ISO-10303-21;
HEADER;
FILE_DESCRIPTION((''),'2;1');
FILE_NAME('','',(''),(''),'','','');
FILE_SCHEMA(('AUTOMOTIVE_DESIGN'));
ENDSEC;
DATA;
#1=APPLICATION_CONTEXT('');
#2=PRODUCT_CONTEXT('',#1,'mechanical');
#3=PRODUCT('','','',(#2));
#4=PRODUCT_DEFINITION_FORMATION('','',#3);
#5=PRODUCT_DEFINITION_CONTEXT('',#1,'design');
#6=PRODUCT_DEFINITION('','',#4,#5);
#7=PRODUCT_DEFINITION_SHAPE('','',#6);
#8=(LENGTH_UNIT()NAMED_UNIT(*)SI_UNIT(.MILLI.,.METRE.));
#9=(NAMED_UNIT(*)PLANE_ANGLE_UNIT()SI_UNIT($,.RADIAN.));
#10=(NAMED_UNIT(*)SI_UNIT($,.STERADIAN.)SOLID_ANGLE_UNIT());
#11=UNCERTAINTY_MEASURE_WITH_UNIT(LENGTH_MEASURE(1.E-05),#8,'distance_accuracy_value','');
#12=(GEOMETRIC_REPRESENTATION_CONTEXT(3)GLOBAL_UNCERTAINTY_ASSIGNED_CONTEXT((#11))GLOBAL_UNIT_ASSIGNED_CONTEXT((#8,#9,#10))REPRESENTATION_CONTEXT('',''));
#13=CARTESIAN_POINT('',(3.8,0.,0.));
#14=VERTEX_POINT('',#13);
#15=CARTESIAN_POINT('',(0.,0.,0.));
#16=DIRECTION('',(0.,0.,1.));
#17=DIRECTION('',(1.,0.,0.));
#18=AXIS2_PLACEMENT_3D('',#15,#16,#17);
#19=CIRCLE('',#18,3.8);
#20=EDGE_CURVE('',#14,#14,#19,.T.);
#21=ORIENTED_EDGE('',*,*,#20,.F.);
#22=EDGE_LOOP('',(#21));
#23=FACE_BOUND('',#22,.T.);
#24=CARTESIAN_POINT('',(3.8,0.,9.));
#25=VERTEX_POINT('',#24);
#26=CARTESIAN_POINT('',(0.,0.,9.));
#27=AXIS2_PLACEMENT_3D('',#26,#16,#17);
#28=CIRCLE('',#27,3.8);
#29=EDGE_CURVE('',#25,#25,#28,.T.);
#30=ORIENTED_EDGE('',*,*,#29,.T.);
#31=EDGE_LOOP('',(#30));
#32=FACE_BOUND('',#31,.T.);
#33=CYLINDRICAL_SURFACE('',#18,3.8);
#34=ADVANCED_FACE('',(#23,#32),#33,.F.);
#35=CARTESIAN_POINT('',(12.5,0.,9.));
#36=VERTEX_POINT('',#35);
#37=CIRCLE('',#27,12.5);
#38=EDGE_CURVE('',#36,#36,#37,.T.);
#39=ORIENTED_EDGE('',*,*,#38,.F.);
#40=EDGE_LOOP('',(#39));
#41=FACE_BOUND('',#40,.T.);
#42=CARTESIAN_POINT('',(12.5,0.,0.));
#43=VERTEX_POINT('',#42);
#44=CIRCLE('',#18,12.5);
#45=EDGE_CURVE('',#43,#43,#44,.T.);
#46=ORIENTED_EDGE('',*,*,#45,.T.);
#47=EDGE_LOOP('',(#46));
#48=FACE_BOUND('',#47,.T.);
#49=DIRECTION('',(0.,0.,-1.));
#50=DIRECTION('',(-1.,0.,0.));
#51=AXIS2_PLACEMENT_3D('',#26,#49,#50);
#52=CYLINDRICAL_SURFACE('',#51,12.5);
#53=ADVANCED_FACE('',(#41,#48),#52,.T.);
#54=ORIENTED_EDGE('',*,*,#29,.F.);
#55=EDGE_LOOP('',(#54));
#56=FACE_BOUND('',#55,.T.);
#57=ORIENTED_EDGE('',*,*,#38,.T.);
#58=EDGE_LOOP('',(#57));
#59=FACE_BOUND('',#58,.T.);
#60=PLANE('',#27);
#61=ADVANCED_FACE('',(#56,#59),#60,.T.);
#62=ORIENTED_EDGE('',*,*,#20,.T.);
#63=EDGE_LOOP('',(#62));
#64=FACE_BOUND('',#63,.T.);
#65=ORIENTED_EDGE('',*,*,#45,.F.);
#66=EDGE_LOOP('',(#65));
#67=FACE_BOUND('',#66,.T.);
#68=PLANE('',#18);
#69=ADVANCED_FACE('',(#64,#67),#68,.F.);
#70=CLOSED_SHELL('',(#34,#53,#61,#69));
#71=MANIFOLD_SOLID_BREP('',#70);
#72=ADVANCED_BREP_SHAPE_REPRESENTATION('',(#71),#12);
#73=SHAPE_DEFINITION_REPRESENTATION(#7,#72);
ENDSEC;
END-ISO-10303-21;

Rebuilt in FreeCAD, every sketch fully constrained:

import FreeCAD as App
import Part
import Sketcher

V = App.Vector

doc = App.newDocument("Part")
body = doc.addObject("PartDesign::Body", "Body")

# Sketch on XY plane
sketch1 = body.newObject("Sketcher::SketchObject", "Sketch")
sketch1.AttachmentSupport = (doc.getObject("XY_Plane"), [""])
sketch1.MapMode = "FlatFace"
sketch1.addGeometry(Part.Circle(V(0, 0, 0), V(0, 0, 1), 12), False)
sketch1.addConstraint([
    Sketcher.Constraint("Coincident", 0, 3, -1, 1),
    Sketcher.Constraint("Diameter", 0, 25.0),
])
pad1 = body.newObject("PartDesign::Pad", "Pad")
pad1.Profile = sketch1
pad1.Length = 9

# Sketch on XY plane
sketch2 = body.newObject("Sketcher::SketchObject", "Sketch001")
sketch2.AttachmentSupport = (doc.getObject("XY_Plane"), [""])
sketch2.MapMode = "FlatFace"
sketch2.AttachmentOffset = App.Placement(V(0, 0, 9), App.Rotation())
sketch2.addGeometry(Part.Circle(V(0, 0, 0), V(0, 0, 1), 3.8), False)
sketch2.addConstraint([
    Sketcher.Constraint("Coincident", 0, 3, -1, 1),
    Sketcher.Constraint("Diameter", 0, 7.6),
])
pocket1 = body.newObject("PartDesign::Pocket", "Pocket")
pocket1.Profile = sketch2
pocket1.Type = "ThroughAll"

doc.recompute()
